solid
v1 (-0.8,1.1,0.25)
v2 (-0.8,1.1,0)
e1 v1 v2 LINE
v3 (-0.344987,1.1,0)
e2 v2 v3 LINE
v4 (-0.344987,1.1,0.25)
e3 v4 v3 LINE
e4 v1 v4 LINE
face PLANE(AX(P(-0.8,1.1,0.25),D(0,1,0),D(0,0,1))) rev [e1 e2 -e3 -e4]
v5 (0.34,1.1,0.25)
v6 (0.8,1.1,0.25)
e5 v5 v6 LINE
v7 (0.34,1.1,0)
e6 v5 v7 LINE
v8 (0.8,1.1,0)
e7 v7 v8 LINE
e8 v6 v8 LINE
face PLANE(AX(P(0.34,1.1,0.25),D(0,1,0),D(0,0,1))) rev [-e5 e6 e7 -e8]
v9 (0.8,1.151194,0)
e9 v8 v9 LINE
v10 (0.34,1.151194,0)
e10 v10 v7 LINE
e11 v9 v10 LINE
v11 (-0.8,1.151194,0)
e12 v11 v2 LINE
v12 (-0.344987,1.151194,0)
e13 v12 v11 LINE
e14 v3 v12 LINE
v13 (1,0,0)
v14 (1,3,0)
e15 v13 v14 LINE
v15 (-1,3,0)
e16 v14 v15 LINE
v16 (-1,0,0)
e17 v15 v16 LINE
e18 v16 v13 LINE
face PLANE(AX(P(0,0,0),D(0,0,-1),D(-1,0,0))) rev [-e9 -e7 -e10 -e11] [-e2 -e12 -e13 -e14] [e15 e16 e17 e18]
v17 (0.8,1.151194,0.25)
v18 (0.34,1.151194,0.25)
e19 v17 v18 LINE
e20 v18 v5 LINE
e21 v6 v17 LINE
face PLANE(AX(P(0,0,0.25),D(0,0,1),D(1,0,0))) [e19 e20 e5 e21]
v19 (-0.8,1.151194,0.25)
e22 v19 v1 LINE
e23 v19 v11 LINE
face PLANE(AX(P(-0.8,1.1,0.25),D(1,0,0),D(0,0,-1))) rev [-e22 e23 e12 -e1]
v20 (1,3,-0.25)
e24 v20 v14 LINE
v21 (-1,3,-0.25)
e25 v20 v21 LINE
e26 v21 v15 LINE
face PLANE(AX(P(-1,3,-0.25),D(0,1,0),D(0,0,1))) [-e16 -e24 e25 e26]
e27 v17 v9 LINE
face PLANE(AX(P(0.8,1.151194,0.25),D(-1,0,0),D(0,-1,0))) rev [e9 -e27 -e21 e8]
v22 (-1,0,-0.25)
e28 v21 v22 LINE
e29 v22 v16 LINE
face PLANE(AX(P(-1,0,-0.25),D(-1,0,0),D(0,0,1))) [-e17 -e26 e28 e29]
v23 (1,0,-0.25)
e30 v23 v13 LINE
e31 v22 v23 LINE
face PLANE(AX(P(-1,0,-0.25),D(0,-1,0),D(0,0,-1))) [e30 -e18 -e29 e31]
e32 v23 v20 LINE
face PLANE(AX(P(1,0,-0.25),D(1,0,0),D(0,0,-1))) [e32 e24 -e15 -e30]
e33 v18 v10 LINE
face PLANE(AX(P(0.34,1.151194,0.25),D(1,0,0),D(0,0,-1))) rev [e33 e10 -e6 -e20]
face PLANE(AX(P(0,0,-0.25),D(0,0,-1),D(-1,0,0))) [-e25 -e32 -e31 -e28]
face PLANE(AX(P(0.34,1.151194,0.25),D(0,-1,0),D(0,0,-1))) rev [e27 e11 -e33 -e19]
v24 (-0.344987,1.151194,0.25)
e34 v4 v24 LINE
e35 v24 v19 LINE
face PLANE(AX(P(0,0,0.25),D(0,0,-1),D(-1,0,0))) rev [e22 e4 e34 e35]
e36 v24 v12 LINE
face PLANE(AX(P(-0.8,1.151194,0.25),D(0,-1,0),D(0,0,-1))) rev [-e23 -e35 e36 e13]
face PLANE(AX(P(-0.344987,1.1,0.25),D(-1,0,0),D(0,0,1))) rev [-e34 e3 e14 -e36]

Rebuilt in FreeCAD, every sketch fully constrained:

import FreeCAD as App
import Part
import Sketcher
from FreeCAD import Vector

doc = App.newDocument("Part")
body = doc.addObject("PartDesign::Body", "Body")

# Sketch on XY plane
sketch1 = body.newObject("Sketcher::SketchObject", "Sketch")
sketch1.AttachmentSupport = (doc.getObject("XY_Plane"), [""])
sketch1.MapMode = "FlatFace"
sketch1.addGeometry([
    Part.LineSegment(Vector(-1, 3, 0), Vector(-1, 0, 0)),
    Part.LineSegment(Vector(-1, 0, 0), Vector(1, 0, 0)),
    Part.LineSegment(Vector(1, 0, 0), Vector(1, 3, 0)),
    Part.LineSegment(Vector(1, 3, 0), Vector(-1, 3, 0)),
], False)
sketch1.addConstraint([
    Sketcher.Constraint("Coincident", 0, 2, 1, 1),
    Sketcher.Constraint("Coincident", 1, 2, 2, 1),
    Sketcher.Constraint("Coincident", 2, 2, 3, 1),
    Sketcher.Constraint("Coincident", 3, 2, 0, 1),
    Sketcher.Constraint("Vertical", 0),
    Sketcher.Constraint("Horizontal", 1),
    Sketcher.Constraint("Vertical", 2),
    Sketcher.Constraint("Horizontal", 3),
    Sketcher.Constraint("Symmetric", 0, 2, 1, 2, -1, 1),
    Sketcher.Constraint("DistanceX", 1, 1, 1, 2, 2.0),
    Sketcher.Constraint("DistanceY", 0, 2, 0, 1, 3.0),
])
pad1 = body.newObject("PartDesign::Pad", "Pad")
pad1.Profile = sketch1
pad1.Length = 0.25
pad1.Reversed = True

# Sketch on XY plane
sketch2 = body.newObject("Sketcher::SketchObject", "Sketch001")
sketch2.AttachmentSupport = (doc.getObject("XY_Plane"), [""])
sketch2.MapMode = "FlatFace"
sketch2.addGeometry([
    Part.LineSegment(Vector(-0.8, 1.15, 0), Vector(-0.8, 1.1, 0)),  # 0
    Part.LineSegment(Vector(-0.8, 1.1, 0), Vector(-0.34, 1.1, 0)),  # 1
    Part.LineSegment(Vector(-0.34, 1.1, 0), Vector(-0.34, 1.15, 0)),  # 2
    Part.LineSegment(Vector(-0.34, 1.15, 0), Vector(-0.8, 1.15, 0)),  # 3
    Part.LineSegment(Vector(0.34, 1.15, 0), Vector(0.34, 1.1, 0)),  # 4
    Part.LineSegment(Vector(0.34, 1.1, 0), Vector(0.8, 1.1, 0)),  # 5
    Part.LineSegment(Vector(0.8, 1.1, 0), Vector(0.8, 1.15, 0)),  # 6
    Part.LineSegment(Vector(0.8, 1.15, 0), Vector(0.34, 1.15, 0)),  # 7
], False)
sketch2.addConstraint([
    Sketcher.Constraint("Coincident", 0, 2, 1, 1),
    Sketcher.Constraint("Coincident", 1, 2, 2, 1),
    Sketcher.Constraint("Coincident", 2, 2, 3, 1),
    Sketcher.Constraint("Coincident", 3, 2, 0, 1),
    Sketcher.Constraint("Coincident", 4, 2, 5, 1),
    Sketcher.Constraint("Coincident", 5, 2, 6, 1),
    Sketcher.Constraint("Coincident", 6, 2, 7, 1),
    Sketcher.Constraint("Coincident", 7, 2, 4, 1),
    Sketcher.Constraint("Vertical", 0),
    Sketcher.Constraint("Horizontal", 1),
    Sketcher.Constraint("Vertical", 2),
    Sketcher.Constraint("Horizontal", 3),
    Sketcher.Constraint("Vertical", 4),
    Sketcher.Constraint("Horizontal", 5),
    Sketcher.Constraint("Vertical", 6),
    Sketcher.Constraint("Horizontal", 7),
    Sketcher.Constraint("Symmetric", 0, 2, 5, 2, -2),
    Sketcher.Constraint("Horizontal", 3, 2, 6, 2),
    Sketcher.Constraint("DistanceX", 5, 1, 5, 2, 0.46),
    Sketcher.Constraint("DistanceX", 0, 2, -1, 1, 0.8),
    Sketcher.Constraint("DistanceY", -1, 1, 0, 2, 1.1),
    Sketcher.Constraint("DistanceX", 1, 1, 1, 2, 0.455013),
    Sketcher.Constraint("DistanceY", 0, 2, 0, 1, 0.051194),
])
pad2 = body.newObject("PartDesign::Pad", "Pad001")
pad2.Profile = sketch2
pad2.Length = 0.25

doc.recompute()
